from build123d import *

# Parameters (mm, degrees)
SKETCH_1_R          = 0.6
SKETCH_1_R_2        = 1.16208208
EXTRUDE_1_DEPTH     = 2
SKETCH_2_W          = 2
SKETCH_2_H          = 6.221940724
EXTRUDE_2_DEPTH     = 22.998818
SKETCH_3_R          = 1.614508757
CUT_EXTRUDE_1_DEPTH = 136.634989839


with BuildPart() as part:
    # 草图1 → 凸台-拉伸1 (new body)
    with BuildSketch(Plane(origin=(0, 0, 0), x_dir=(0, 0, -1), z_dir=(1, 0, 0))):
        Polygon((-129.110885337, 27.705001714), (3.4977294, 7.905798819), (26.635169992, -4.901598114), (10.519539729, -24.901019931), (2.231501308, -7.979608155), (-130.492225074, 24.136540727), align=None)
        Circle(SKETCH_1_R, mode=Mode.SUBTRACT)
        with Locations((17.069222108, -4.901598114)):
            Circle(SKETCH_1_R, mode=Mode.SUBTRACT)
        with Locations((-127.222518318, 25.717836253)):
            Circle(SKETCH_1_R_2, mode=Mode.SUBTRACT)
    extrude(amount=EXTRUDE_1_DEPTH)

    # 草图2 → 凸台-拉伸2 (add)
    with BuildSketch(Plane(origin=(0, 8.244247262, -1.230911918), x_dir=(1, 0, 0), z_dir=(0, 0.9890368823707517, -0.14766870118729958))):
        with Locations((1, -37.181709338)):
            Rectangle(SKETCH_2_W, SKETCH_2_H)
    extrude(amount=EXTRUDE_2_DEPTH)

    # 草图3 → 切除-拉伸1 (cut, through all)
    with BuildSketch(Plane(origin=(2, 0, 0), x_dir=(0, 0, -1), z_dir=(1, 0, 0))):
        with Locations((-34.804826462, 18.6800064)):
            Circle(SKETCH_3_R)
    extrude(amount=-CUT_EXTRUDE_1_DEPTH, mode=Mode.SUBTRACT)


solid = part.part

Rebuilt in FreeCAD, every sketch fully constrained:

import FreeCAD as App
import Part
import Sketcher


def add_polygon(sketch, points):
    """Adds a closed chain of lines whose ends are joined by coincident constraints."""
    first, n = sketch.GeometryCount, len(points)
    for a, b in zip(points, points[1:] + points[:1]):
        sketch.addGeometry(Part.LineSegment(App.Vector(*a, 0), App.Vector(*b, 0)), False)
    for i in range(n):
        sketch.addConstraint(Sketcher.Constraint("Coincident", first + i, 2, first + (i + 1) % n, 1))

doc = App.newDocument("Part")
body = doc.addObject("PartDesign::Body", "Body")

sketch1 = body.newObject("Sketcher::SketchObject", "Sketch")
sketch1.AttachmentSupport = (doc.getObject("YZ_Plane"), [""])
sketch1.MapMode = "FlatFace"
add_polygon(sketch1, [(7.905799, -3.497729), (27.705002, 129.110885), (24.136541, 130.492225), (-7.979608, -2.231501), (-24.90102, -10.51954), (-4.901598, -26.63517)])
sketch1.addGeometry(Part.Circle(App.Vector(-4.901598, -17.069222, 0), App.Vector(0, 0, 1), 0.6), False)
sketch1.addGeometry(Part.Circle(App.Vector(0, 0, 0), App.Vector(0, 0, 1), 0.6), False)
sketch1.addGeometry(Part.Circle(App.Vector(25.717836, 127.222518, 0), App.Vector(0, 0, 1), 1.162082), False)
sketch1.addConstraint([
    Sketcher.Constraint("Coincident", 7, 3, -1, 1),
    Sketcher.Constraint("Equal", 6, 7),
    Sketcher.Constraint("Vertical", 6, 3, 4, 2),
    Sketcher.Constraint("Diameter", 6, 1.2),
    Sketcher.Constraint("Diameter", 8, 2.324164),
    Sketcher.Constraint("DistanceX", -1, 1, 0, 2, 27.705002),
    Sketcher.Constraint("DistanceX", 6, 3, -1, 1, 4.901598),
    Sketcher.Constraint("DistanceY", 2, 2, -1, 1, 2.231501),
    Sketcher.Constraint("DistanceX", -1, 1, 5, 2, 7.905799),
    Sketcher.Constraint("Distance", 1, 3.826488),
    Sketcher.Constraint("Distance", 4, 25.684439),
    Sketcher.Constraint("DistanceY", -1, 1, 8, 3, 127.222518),
    Sketcher.Constraint("DistanceX", -1, 1, 1, 2, 24.136541),
    Sketcher.Constraint("DistanceX", 2, 2, -1, 1, 7.979608),
    Sketcher.Constraint("DistanceX", 3, 2, -1, 1, 24.90102),
    Sketcher.Constraint("DistanceY", 3, 2, -1, 1, 10.51954),
    Sketcher.Constraint("DistanceY", 5, 2, -1, 1, 3.497729),
    Sketcher.Constraint("DistanceY", 6, 3, 8, 3, 144.29174),
    Sketcher.Constraint("Distance", 0, 134.078533),
    Sketcher.Constraint("DistanceX", -1, 1, 8, 3, 25.717836),
])
pad1 = body.newObject("PartDesign::Pad", "Pad")
pad1.Profile = sketch1
pad1.Length = 2

sketch2 = body.newObject("Sketcher::SketchObject", "Sketch001")
sketch2.Placement = App.Placement(App.Vector(0, 8.244247, -1.230912), App.Rotation(App.Vector(1, 0, 0), App.Vector(0, -0.147668701, -0.989036882), App.Vector(0, 0.989036882, -0.147668701), "ZXY"))
add_polygon(sketch2, [(0, -34.070739), (0, -40.29268), (2, -40.29268), (2, -34.070739)])
sketch2.addConstraint([
    Sketcher.Constraint("Vertical", 0),
    Sketcher.Constraint("Horizontal", 1),
    Sketcher.Constraint("Vertical", 2),
    Sketcher.Constraint("Horizontal", 3),
    Sketcher.Constraint("PointOnObject", 0, 2, -2),
    Sketcher.Constraint("DistanceX", 1, 1, 1, 2, 2.0),
    Sketcher.Constraint("DistanceY", 0, 2, 0, 1, 6.221941),
    Sketcher.Constraint("DistanceY", 0, 2, -1, 1, 40.29268),
])
pad2 = body.newObject("PartDesign::Pad", "Pad001")
pad2.Profile = sketch2
pad2.Length = 22.998818

sketch3 = body.newObject("Sketcher::SketchObject", "Sketch002")
sketch3.AttachmentSupport = (doc.getObject("YZ_Plane"), [""])
sketch3.MapMode = "FlatFace"
sketch3.AttachmentOffset = App.Placement(App.Vector(0, 0, 2), App.Rotation())
sketch3.addGeometry(Part.Circle(App.Vector(18.680006, 34.804826, 0), App.Vector(0, 0, 1), 1.614509), False)
sketch3.addConstraint([
    Sketcher.Constraint("Diameter", 0, 3.229018),
    Sketcher.Constraint("DistanceX", -1, 1, 0, 3, 18.680006),
    Sketcher.Constraint("DistanceY", -1, 1, 0, 3, 34.804826),
])
pocket1 = body.newObject("PartDesign::Pocket", "Pocket")
pocket1.Profile = sketch3
pocket1.Type = "ThroughAll"

doc.recompute()
